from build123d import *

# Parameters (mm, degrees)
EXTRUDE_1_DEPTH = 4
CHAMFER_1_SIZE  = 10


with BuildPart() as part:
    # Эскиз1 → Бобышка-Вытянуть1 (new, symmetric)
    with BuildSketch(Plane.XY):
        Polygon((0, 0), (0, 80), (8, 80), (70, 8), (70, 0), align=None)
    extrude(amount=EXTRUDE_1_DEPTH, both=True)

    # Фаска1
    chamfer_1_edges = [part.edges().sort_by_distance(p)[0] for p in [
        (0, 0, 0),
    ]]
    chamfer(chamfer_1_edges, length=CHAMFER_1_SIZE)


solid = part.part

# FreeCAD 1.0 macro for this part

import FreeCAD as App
import Part
import Sketcher

V = App.Vector


def edges_at(feature, points):
    """Names of the edges that pass closest to the given points."""
    edges = feature.Shape.Edges
    near = lambda p: min(range(len(edges)), key=lambda i: edges[i].distToShape(Part.Vertex(*p))[0])
    return sorted({f"Edge{near(p) + 1}" for p in points})


def add_polygon(sketch, points):
    """Adds a closed chain of lines whose ends are joined by coincident constraints."""
    first, n = sketch.GeometryCount, len(points)
    for a, b in zip(points, points[1:] + points[:1]):
        sketch.addGeometry(Part.LineSegment(App.Vector(*a, 0), App.Vector(*b, 0)), False)
    for i in range(n):
        sketch.addConstraint(Sketcher.Constraint("Coincident", first + i, 2, first + (i + 1) % n, 1))

doc = App.newDocument("Part")
body = doc.addObject("PartDesign::Body", "Body")

sketch1 = body.newObject("Sketcher::SketchObject", "Sketch")
sketch1.AttachmentSupport = (doc.getObject("XY_Plane"), [""])
sketch1.MapMode = "FlatFace"
add_polygon(sketch1, [(0, 80), (0, 0), (70, 0), (70, 8), (8, 80)])
sketch1.addConstraint([
    Sketcher.Constraint("Vertical", 0),
    Sketcher.Constraint("Horizontal", 1),
    Sketcher.Constraint("Vertical", 2),
    Sketcher.Constraint("Horizontal", 4),
    Sketcher.Constraint("Coincident", 0, 2, -1, 1),
    Sketcher.Constraint("Equal", 4, 2),
    Sketcher.Constraint("DistanceX", 1, 1, 1, 2, 70.0),
    Sketcher.Constraint("DistanceX", 4, 2, 4, 1, 8.0),
    Sketcher.Constraint("DistanceY", 0, 2, 0, 1, 80.0),
])
pad1 = body.newObject("PartDesign::Pad", "Pad")
pad1.Profile = sketch1
pad1.Length = 8
pad1.Midplane = True
doc.recompute()

chamfer = body.newObject("PartDesign::Chamfer", "Chamfer")
chamfer.Base = (pad1, edges_at(pad1, [(0, 0, 0)]))
chamfer.Size = 10

doc.recompute()
